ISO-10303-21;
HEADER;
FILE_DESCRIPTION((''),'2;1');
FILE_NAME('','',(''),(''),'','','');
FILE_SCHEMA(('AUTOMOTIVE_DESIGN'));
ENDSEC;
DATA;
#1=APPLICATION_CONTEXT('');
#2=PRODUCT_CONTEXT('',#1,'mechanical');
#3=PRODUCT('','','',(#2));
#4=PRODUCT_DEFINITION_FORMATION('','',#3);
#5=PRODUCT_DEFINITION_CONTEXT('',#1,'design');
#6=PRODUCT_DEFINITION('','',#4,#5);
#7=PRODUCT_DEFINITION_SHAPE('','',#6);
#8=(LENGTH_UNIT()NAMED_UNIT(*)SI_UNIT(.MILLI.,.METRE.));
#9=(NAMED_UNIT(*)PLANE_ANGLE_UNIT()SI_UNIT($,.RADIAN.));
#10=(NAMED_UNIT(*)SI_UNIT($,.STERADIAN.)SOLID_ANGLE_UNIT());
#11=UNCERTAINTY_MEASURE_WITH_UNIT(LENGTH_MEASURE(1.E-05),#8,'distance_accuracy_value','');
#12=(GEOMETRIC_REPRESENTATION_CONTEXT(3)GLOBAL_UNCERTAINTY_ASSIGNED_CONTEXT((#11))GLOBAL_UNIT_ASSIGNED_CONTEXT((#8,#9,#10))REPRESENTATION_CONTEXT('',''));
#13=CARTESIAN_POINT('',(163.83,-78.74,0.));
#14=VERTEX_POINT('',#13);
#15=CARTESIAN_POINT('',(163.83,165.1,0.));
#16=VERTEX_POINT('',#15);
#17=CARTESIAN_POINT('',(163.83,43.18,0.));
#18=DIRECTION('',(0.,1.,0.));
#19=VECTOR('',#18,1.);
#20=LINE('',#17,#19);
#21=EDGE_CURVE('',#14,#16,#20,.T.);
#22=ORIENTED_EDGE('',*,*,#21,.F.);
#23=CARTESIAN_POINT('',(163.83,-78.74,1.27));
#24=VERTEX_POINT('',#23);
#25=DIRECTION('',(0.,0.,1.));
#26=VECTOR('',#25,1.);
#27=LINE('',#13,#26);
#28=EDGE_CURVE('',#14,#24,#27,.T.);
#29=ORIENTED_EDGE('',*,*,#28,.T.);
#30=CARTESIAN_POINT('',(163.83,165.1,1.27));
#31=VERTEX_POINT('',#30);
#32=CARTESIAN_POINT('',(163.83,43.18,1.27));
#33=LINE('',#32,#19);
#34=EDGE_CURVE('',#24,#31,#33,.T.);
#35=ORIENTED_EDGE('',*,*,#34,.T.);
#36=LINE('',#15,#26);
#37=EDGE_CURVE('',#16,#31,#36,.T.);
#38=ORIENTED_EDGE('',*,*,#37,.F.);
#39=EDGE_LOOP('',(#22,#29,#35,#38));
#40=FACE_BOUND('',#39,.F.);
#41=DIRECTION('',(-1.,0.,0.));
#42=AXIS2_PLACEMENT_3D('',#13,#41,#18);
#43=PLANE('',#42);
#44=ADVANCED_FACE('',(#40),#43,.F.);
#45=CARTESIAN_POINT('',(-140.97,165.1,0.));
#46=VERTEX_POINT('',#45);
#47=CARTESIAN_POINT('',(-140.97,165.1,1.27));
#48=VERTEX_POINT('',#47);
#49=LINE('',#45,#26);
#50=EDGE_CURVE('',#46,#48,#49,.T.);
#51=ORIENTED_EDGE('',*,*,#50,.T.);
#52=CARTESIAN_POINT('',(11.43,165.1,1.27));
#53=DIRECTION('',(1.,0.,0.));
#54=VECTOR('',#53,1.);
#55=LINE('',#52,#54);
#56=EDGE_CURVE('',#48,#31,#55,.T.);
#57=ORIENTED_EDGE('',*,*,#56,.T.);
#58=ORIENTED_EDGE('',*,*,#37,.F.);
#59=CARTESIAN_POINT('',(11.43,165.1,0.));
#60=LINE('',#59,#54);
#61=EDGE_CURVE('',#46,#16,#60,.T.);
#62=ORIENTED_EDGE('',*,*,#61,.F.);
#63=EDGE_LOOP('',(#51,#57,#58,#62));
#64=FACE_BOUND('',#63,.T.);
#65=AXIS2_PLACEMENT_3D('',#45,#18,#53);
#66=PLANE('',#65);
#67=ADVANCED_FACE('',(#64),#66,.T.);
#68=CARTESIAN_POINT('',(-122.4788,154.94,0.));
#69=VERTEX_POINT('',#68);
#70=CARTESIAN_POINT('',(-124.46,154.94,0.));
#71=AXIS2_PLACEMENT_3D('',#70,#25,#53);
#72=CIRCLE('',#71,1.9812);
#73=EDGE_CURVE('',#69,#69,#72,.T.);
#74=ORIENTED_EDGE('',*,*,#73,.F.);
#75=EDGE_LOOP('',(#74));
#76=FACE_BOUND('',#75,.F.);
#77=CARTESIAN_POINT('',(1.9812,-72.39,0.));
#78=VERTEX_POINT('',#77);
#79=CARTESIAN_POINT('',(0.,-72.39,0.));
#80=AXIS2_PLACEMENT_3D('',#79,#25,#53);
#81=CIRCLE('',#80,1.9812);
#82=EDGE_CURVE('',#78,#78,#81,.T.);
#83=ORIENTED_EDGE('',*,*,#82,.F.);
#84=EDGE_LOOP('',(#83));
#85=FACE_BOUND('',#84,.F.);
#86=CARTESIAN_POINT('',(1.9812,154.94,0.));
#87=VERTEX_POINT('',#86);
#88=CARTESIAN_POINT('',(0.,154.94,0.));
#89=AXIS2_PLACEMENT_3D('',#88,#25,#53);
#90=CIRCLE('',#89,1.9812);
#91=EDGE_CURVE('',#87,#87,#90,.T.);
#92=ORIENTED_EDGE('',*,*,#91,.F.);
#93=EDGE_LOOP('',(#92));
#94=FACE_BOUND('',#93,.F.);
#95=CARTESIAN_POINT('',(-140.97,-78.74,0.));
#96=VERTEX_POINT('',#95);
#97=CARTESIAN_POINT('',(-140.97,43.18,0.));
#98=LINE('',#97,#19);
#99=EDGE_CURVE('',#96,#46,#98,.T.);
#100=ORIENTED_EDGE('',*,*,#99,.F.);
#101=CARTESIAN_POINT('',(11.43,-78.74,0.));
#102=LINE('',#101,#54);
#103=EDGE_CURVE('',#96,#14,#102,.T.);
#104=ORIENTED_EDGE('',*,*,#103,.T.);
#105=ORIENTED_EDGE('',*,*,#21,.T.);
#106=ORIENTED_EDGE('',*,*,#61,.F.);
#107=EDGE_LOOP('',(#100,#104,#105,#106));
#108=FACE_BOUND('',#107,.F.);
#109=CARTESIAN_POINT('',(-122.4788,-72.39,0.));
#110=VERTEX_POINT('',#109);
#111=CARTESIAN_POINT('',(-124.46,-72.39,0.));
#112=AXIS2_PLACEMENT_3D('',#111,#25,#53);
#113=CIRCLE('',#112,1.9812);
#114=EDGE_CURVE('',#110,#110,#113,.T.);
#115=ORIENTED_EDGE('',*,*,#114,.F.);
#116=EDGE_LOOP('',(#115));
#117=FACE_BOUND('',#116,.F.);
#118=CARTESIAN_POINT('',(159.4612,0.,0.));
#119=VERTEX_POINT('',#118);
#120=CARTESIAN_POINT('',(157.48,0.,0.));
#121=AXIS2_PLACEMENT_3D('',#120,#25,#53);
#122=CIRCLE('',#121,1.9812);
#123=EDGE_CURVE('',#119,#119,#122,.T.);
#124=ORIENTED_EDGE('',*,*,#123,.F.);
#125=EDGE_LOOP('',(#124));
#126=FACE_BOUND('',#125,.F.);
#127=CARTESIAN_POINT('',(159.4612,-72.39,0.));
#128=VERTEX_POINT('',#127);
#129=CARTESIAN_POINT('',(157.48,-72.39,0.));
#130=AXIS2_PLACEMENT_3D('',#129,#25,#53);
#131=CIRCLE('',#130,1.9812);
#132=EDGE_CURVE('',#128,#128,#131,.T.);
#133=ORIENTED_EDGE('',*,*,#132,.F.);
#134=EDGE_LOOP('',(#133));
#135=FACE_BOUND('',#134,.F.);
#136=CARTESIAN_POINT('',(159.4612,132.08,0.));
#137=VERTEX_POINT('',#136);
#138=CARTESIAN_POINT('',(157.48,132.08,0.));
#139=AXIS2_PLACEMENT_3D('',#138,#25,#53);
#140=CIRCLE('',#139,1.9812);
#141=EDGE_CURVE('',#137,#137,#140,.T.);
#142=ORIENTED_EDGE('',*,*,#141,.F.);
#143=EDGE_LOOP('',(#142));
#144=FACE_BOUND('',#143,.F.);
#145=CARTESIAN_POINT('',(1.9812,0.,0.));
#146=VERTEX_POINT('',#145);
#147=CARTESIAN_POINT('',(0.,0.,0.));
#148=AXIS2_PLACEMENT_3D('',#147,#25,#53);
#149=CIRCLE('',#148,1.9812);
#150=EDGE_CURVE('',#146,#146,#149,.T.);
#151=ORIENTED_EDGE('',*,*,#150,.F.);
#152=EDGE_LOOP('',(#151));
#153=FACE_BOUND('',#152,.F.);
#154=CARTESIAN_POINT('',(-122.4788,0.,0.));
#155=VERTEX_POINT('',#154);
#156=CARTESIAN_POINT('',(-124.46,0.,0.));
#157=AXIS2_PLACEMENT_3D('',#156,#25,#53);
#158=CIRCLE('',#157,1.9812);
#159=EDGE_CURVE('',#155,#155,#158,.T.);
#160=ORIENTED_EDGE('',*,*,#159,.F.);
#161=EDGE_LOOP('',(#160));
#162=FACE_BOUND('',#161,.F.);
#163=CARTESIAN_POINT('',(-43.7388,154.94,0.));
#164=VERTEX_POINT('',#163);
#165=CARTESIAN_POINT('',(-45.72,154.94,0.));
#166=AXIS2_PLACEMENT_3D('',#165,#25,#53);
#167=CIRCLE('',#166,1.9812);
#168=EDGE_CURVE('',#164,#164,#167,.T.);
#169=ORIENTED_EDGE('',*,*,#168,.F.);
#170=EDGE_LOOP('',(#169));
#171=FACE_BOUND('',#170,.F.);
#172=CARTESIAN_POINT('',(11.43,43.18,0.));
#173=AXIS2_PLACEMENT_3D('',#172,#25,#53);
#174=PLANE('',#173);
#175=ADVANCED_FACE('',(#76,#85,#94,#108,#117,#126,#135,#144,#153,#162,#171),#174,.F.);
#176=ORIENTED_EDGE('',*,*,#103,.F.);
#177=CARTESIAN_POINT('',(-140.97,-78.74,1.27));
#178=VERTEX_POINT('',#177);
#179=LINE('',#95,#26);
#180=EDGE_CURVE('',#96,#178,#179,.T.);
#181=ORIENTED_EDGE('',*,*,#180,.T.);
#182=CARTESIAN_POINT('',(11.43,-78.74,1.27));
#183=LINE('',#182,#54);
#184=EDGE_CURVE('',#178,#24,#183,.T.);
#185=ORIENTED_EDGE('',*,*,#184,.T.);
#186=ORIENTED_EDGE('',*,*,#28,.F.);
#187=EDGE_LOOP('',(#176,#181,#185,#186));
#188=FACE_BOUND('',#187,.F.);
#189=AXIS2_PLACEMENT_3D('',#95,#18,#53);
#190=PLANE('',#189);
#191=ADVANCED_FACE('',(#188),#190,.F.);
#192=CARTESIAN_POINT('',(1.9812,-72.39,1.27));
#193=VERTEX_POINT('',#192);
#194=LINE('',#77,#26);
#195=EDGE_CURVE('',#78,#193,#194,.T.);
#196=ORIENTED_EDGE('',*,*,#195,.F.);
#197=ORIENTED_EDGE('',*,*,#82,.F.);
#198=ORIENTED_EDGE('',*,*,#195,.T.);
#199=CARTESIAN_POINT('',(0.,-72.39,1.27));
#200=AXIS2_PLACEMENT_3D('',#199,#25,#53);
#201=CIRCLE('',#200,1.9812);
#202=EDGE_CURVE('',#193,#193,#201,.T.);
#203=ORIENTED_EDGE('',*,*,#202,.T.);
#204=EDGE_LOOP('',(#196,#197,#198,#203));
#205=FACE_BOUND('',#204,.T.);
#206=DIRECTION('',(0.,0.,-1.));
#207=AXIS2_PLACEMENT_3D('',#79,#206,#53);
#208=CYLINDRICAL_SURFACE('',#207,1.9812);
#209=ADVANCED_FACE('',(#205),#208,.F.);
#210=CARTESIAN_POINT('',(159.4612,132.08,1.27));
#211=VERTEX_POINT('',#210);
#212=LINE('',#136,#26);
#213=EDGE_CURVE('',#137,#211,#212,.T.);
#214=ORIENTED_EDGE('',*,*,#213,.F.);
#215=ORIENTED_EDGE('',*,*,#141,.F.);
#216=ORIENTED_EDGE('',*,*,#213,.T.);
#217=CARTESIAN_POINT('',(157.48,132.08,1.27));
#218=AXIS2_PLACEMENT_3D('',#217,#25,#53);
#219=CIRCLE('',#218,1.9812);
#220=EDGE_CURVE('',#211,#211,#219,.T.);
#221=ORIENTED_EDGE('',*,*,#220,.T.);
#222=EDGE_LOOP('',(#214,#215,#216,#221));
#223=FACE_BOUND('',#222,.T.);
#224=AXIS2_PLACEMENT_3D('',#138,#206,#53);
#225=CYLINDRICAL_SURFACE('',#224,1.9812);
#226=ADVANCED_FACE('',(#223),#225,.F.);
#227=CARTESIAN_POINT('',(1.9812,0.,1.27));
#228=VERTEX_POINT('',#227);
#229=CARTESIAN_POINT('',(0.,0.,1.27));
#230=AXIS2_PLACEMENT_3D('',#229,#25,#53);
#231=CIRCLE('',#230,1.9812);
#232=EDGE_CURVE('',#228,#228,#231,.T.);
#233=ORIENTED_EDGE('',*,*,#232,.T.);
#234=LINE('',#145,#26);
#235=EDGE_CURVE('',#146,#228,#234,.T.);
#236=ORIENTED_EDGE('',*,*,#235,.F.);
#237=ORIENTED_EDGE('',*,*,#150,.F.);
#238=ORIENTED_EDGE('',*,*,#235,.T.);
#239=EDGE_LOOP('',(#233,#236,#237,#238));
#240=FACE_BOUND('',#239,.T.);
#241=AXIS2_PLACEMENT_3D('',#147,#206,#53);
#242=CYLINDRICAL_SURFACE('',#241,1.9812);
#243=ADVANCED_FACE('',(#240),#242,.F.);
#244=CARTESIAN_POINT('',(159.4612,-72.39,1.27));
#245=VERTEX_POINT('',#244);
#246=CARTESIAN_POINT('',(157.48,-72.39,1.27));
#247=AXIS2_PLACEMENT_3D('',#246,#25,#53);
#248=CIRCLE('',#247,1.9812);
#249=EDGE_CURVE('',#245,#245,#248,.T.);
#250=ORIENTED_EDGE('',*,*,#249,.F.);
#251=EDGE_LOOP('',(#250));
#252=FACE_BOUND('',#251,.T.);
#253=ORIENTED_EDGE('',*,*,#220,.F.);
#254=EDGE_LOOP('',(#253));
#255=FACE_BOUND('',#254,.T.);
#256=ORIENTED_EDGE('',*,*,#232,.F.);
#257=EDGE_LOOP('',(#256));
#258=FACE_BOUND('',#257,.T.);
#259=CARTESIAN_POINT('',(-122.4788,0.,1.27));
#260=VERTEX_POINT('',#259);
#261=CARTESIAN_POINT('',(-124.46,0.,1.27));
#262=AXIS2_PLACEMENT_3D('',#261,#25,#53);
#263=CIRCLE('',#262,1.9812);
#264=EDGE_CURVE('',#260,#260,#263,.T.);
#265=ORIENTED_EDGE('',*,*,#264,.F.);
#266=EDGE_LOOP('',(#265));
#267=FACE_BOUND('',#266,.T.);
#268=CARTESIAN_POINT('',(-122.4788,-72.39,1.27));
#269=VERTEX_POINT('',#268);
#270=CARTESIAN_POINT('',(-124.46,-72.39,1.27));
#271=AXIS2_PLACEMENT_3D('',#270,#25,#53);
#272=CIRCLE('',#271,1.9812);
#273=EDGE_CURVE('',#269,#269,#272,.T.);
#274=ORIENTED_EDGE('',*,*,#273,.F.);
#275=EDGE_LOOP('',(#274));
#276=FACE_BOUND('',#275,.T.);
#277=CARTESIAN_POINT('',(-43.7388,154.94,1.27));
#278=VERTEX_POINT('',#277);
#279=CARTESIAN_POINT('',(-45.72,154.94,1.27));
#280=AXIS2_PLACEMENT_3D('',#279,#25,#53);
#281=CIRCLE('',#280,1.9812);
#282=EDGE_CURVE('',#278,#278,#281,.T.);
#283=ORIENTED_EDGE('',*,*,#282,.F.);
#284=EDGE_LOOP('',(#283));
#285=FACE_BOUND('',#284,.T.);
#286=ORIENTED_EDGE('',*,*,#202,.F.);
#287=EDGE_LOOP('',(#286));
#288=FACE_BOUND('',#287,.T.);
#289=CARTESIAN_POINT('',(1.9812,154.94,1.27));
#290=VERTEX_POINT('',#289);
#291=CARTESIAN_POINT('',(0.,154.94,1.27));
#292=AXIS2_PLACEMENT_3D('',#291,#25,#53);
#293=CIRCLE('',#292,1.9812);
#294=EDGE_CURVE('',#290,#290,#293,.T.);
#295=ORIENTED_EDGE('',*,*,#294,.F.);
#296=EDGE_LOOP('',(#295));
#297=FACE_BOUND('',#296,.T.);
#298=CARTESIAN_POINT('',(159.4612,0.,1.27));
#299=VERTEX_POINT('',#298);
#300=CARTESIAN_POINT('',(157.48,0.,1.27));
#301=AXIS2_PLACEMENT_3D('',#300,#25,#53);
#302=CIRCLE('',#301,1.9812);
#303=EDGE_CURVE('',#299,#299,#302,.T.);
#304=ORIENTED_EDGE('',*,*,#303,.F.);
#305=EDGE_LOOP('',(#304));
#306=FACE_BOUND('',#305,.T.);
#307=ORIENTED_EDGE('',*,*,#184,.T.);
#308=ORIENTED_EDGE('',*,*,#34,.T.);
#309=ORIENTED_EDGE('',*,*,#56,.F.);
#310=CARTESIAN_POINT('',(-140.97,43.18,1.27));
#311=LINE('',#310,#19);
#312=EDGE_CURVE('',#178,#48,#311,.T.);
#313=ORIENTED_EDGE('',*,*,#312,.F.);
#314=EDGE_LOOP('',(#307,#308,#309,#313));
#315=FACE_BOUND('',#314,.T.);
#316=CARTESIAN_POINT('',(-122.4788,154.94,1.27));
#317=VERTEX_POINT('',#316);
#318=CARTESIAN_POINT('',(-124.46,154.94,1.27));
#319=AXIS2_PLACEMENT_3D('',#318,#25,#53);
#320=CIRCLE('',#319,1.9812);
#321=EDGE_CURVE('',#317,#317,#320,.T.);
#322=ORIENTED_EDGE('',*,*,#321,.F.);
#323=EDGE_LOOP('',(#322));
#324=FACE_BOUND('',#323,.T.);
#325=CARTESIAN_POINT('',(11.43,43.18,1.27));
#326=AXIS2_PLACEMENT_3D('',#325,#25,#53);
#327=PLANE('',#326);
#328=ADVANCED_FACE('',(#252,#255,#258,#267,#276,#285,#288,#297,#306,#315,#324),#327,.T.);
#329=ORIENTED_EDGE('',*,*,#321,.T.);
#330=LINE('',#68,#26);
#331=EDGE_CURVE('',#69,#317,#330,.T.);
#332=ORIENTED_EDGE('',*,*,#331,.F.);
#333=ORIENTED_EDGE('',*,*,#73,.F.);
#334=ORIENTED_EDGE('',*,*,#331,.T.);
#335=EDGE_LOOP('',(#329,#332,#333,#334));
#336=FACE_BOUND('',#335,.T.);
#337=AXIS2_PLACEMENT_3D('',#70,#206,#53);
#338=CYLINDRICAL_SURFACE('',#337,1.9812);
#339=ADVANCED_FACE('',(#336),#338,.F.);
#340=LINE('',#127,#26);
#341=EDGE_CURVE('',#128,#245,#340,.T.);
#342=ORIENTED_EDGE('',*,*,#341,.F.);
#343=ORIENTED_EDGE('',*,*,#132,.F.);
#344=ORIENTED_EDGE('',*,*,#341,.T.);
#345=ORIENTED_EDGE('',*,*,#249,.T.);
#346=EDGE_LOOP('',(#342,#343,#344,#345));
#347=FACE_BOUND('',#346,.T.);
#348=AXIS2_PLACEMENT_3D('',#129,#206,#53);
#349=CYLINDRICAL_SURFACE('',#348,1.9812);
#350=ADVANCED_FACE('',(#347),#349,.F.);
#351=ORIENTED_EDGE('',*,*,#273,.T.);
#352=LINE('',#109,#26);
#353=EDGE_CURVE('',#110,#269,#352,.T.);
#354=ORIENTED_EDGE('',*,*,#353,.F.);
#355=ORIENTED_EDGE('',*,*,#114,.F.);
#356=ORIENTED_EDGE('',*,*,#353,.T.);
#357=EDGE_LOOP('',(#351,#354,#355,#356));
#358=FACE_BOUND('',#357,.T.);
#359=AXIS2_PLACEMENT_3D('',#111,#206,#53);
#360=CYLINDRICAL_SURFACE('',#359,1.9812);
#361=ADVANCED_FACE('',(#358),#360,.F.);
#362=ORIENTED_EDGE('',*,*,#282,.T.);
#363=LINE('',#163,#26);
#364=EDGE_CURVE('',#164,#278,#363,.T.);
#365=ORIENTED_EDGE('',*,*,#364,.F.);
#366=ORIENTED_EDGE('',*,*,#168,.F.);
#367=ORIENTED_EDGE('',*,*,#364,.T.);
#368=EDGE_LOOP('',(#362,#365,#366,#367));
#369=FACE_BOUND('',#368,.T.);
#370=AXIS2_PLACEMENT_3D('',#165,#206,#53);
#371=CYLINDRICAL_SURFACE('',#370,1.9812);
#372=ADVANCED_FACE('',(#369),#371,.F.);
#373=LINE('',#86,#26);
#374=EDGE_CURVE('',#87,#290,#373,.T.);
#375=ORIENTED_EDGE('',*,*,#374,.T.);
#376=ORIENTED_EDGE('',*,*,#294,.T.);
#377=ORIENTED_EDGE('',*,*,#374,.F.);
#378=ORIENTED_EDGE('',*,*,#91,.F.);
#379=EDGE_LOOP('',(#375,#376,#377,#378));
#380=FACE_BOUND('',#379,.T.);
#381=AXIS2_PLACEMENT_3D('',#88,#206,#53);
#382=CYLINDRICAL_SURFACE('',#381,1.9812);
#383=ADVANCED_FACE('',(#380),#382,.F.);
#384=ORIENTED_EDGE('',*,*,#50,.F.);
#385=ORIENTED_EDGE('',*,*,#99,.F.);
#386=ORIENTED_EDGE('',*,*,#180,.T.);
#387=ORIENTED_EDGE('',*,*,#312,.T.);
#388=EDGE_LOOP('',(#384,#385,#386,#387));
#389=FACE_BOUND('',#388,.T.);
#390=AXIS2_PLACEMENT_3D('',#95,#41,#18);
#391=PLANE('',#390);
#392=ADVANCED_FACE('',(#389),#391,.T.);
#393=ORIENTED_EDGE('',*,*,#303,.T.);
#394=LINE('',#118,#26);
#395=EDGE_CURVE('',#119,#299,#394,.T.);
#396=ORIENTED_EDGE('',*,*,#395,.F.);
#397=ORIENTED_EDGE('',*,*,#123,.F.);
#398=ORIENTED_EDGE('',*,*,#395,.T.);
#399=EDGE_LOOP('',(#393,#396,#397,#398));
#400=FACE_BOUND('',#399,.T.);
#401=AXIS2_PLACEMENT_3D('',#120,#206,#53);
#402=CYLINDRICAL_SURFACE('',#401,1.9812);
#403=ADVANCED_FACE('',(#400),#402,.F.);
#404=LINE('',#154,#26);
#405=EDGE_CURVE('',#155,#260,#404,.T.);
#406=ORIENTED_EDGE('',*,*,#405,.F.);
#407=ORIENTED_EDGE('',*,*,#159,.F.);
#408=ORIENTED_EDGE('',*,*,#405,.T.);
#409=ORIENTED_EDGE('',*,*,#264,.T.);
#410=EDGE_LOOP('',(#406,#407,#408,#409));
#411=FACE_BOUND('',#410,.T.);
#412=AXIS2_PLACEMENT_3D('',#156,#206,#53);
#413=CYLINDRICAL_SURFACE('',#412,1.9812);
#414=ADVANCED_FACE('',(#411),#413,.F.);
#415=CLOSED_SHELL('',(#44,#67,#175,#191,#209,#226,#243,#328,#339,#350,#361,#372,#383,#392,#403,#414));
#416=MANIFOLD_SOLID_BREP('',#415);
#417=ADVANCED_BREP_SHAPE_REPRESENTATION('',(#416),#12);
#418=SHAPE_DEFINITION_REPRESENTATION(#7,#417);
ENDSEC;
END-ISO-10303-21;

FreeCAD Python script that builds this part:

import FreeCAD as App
import Part
import Sketcher

V = App.Vector
Q = App.Units.Quantity


def add_polygon(sketch, points):
    """Adds a closed chain of lines whose ends are joined by coincident constraints."""
    first, n = sketch.GeometryCount, len(points)
    for a, b in zip(points, points[1:] + points[:1]):
        sketch.addGeometry(Part.LineSegment(App.Vector(*a, 0), App.Vector(*b, 0)), False)
    for i in range(n):
        sketch.addConstraint(Sketcher.Constraint("Coincident", first + i, 2, first + (i + 1) % n, 1))

doc = App.newDocument("Part")
body = doc.addObject("PartDesign::Body", "Body")

sketch1 = body.newObject("Sketcher::SketchObject", "Sketch")
sketch1.AttachmentSupport = (doc.getObject("XY_Plane"), [""])
sketch1.MapMode = "FlatFace"
add_polygon(sketch1, [(-141, 165.1), (-141, -78.7), (163.8, -78.7), (163.8, 165.1)])
sketch1.addGeometry(Part.Circle(V(-124.5, -72.4, 0), V(0, 0, 1), 2), False)
sketch1.addGeometry(Part.Circle(V(0, -72.4, 0), V(0, 0, 1), 2), False)
sketch1.addGeometry(Part.Circle(V(-124.5, 0, 0), V(0, 0, 1), 2), False)
sketch1.addGeometry(Part.Circle(V(0, 0, 0), V(0, 0, 1), 2), False)
sketch1.addGeometry(Part.Circle(V(157.5, -72.4, 0), V(0, 0, 1), 2), False)
sketch1.addGeometry(Part.Circle(V(157.5, 0, 0), V(0, 0, 1), 2), False)
sketch1.addGeometry(Part.Circle(V(-124.5, 154.9, 0), V(0, 0, 1), 2), False)
sketch1.addGeometry(Part.Circle(V(-45.7, 154.9, 0), V(0, 0, 1), 2), False)
sketch1.addGeometry(Part.Circle(V(0, 154.9, 0), V(0, 0, 1), 2), False)
sketch1.addGeometry(Part.Circle(V(157.5, 132.1, 0), V(0, 0, 1), 2), False)
sketch1.addConstraint(Sketcher.Constraint("Vertical", 0))
sketch1.addConstraint(Sketcher.Constraint("Horizontal", 1))
sketch1.addConstraint(Sketcher.Constraint("Vertical", 2))
sketch1.addConstraint(Sketcher.Constraint("Horizontal", 3))
sketch1.addConstraint(Sketcher.Constraint("Coincident", 7, 3, -1, 1))
sketch1.addConstraint(Sketcher.Constraint("Equal", 4, 5))
sketch1.addConstraint(Sketcher.Constraint("Equal", 5, 6))
sketch1.addConstraint(Sketcher.Constraint("Equal", 6, 7))
sketch1.addConstraint(Sketcher.Constraint("Equal", 7, 8))
sketch1.addConstraint(Sketcher.Constraint("Equal", 8, 9))
sketch1.addConstraint(Sketcher.Constraint("Equal", 9, 10))
sketch1.addConstraint(Sketcher.Constraint("Equal", 10, 11))
sketch1.addConstraint(Sketcher.Constraint("Equal", 11, 12))
sketch1.addConstraint(Sketcher.Constraint("Equal", 12, 13))
sketch1.addConstraint(Sketcher.Constraint("PointOnObject", 5, 3, -2))
sketch1.addConstraint(Sketcher.Constraint("PointOnObject", 6, 3, -1))
sketch1.addConstraint(Sketcher.Constraint("PointOnObject", 9, 3, -1))
sketch1.addConstraint(Sketcher.Constraint("PointOnObject", 12, 3, -2))
sketch1.addConstraint(Sketcher.Constraint("Horizontal", 4, 3, 5, 3))
sketch1.addConstraint(Sketcher.Constraint("Horizontal", 5, 3, 8, 3))
sketch1.addConstraint(Sketcher.Constraint("Horizontal", 10, 3, 11, 3))
sketch1.addConstraint(Sketcher.Constraint("Horizontal", 11, 3, 12, 3))
sketch1.addConstraint(Sketcher.Constraint("Vertical", 4, 3, 6, 3))
sketch1.addConstraint(Sketcher.Constraint("Vertical", 8, 3, 9, 3))
sketch1.addConstraint(Sketcher.Constraint("Vertical", 6, 3, 10, 3))
sketch1.addConstraint(Sketcher.Constraint("Vertical", 9, 3, 13, 3))
sketch1.addConstraint(Sketcher.Constraint("DistanceX", 1, 1, 1, 2, Q("12 in")))
sketch1.addConstraint(Sketcher.Constraint("Diameter", 4, Q("0.156 in")))
sketch1.addConstraint(Sketcher.Constraint("DistanceY", 0, 2, 0, 1, Q("9.6 in")))
sketch1.addConstraint(Sketcher.Constraint("DistanceX", 11, 3, 13, 3, Q("8 in")))
sketch1.addConstraint(Sketcher.Constraint("DistanceX", 4, 3, -1, 1, Q("4.9 in")))
sketch1.addConstraint(Sketcher.Constraint("DistanceX", -1, 1, 8, 3, Q("6.2 in")))
sketch1.addConstraint(Sketcher.Constraint("DistanceY", -1, 1, 10, 3, Q("6.1 in")))
sketch1.addConstraint(Sketcher.Constraint("DistanceY", -1, 1, 13, 3, Q("5.2 in")))
sketch1.addConstraint(Sketcher.Constraint("DistanceY", 0, 2, -1, 1, Q("3.1 in")))
sketch1.addConstraint(Sketcher.Constraint("DistanceY", 4, 3, -1, 1, Q("2.85 in")))
sketch1.addConstraint(Sketcher.Constraint("DistanceX", 0, 2, -1, 1, Q("5.55 in")))
pad1 = body.newObject("PartDesign::Pad", "Pad")
pad1.Profile = sketch1
pad1.Length = Q("0.05 in")

doc.recompute()
